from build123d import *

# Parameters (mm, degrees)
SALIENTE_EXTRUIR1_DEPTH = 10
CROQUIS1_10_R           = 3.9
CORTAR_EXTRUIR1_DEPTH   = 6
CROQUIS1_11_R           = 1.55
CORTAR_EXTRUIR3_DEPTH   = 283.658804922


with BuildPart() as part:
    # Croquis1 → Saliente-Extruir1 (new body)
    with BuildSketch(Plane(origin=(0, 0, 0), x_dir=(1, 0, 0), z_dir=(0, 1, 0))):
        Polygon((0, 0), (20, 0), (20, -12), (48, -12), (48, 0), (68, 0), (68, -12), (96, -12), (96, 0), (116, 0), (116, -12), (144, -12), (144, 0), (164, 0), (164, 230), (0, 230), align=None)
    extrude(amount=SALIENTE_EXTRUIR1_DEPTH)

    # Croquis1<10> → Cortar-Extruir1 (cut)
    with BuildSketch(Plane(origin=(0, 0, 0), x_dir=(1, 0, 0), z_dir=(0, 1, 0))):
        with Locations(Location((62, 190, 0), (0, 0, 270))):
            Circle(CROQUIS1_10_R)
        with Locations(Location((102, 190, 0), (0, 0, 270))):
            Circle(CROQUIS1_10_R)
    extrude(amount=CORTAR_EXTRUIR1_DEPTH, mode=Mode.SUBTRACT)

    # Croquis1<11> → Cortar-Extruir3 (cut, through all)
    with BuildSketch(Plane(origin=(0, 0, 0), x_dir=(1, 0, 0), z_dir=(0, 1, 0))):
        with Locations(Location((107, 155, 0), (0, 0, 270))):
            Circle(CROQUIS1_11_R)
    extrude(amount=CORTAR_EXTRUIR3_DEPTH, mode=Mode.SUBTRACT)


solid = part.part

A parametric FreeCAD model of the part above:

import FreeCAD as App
import Part
import Sketcher
from FreeCAD import Vector
Q = App.Units.Quantity


def add_polygon(sketch, points):
    """Adds a closed chain of lines whose ends are joined by coincident constraints."""
    first, n = sketch.GeometryCount, len(points)
    for a, b in zip(points, points[1:] + points[:1]):
        sketch.addGeometry(Part.LineSegment(App.Vector(*a, 0), App.Vector(*b, 0)), False)
    for i in range(n):
        sketch.addConstraint(Sketcher.Constraint("Coincident", first + i, 2, first + (i + 1) % n, 1))

doc = App.newDocument("Part")
body = doc.addObject("PartDesign::Body", "Body")

sketch1 = doc.addObject("Sketcher::SketchObject", "Sketch")
body.addObject(sketch1)
sketch1.AttachmentSupport = (doc.XZ_Plane, [""])
sketch1.MapMode = "FlatFace"
add_polygon(sketch1, [(0, 0), (20, 0), (20, 12), (48, 12), (48, 0), (68, 0), (68, 12), (96, 12), (96, 0), (116, 0), (116, 12), (144, 12), (144, 0), (164, 0), (164, -230), (0, -230)])
sketch1.addConstraint([
    Sketcher.Constraint("Horizontal", 0),
    Sketcher.Constraint("Vertical", 1),
    Sketcher.Constraint("Horizontal", 2),
    Sketcher.Constraint("Vertical", 3),
    Sketcher.Constraint("Horizontal", 4),
    Sketcher.Constraint("Vertical", 5),
    Sketcher.Constraint("Horizontal", 6),
    Sketcher.Constraint("Vertical", 7),
    Sketcher.Constraint("Horizontal", 8),
    Sketcher.Constraint("Vertical", 9),
    Sketcher.Constraint("Horizontal", 10),
    Sketcher.Constraint("Vertical", 11),
    Sketcher.Constraint("Horizontal", 12),
    Sketcher.Constraint("Vertical", 13),
    Sketcher.Constraint("Horizontal", 14),
    Sketcher.Constraint("Vertical", 15),
    Sketcher.Constraint("Coincident", 15, 2, -1, 1),
    Sketcher.Constraint("PointOnObject", 3, 2, -1),
    Sketcher.Constraint("PointOnObject", 7, 2, -1),
    Sketcher.Constraint("PointOnObject", 11, 2, -1),
    Sketcher.Constraint("Horizontal", 2, 2, 5, 2),
    Sketcher.Constraint("Horizontal", 6, 2, 9, 2),
    Sketcher.Constraint("Equal", 0, 4),
    Sketcher.Constraint("Equal", 2, 6),
    Sketcher.Constraint("Equal", 4, 8),
    Sketcher.Constraint("Equal", 6, 10),
    Sketcher.Constraint("Equal", 8, 12),
    Sketcher.Constraint("DistanceX", 0, 1, 0, 2, Q("20 mm")),
    Sketcher.Constraint("DistanceX", 2, 1, 2, 2, Q("28 mm")),
    Sketcher.Constraint("DistanceY", 1, 1, 1, 2, Q("12 mm")),
    Sketcher.Constraint("DistanceY", 13, 2, 13, 1, Q("230 mm")),
])
pad1 = doc.addObject("PartDesign::Pad", "Pad")
body.addObject(pad1)
pad1.Profile = sketch1
pad1.Length = 10
pad1.Reversed = True

sketch2 = doc.addObject("Sketcher::SketchObject", "Sketch001")
body.addObject(sketch2)
sketch2.AttachmentSupport = (doc.XZ_Plane, [""])
sketch2.MapMode = "FlatFace"
sketch2.addGeometry([
    Part.Circle(Vector(62, -190, 0), Vector(0, 0, 1), 3.9),
    Part.Circle(Vector(102, -190, 0), Vector(0, 0, 1), 3.9),
], False)
sketch2.addConstraint([
    Sketcher.Constraint("Equal", 0, 1),
    Sketcher.Constraint("Horizontal", 0, 3, 1, 3),
    Sketcher.Constraint("Diameter", 0, Q("7.8 mm")),
    Sketcher.Constraint("DistanceX", -1, 1, 0, 3, Q("62 mm")),
    Sketcher.Constraint("DistanceY", 0, 3, -1, 1, Q("190 mm")),
    Sketcher.Constraint("DistanceX", -1, 1, 1, 3, Q("102 mm")),
])
pocket1 = doc.addObject("PartDesign::Pocket", "Pocket")
body.addObject(pocket1)
pocket1.Profile = sketch2
pocket1.Length = 6

sketch3 = doc.addObject("Sketcher::SketchObject", "Sketch002")
body.addObject(sketch3)
sketch3.AttachmentSupport = (doc.XZ_Plane, [""])
sketch3.MapMode = "FlatFace"
sketch3.addGeometry(Part.Circle(Vector(107, -155, 0), Vector(0, 0, 1), 1.6), False)
sketch3.addConstraint([
    Sketcher.Constraint("Diameter", 0, Q("3.1 mm")),
    Sketcher.Constraint("DistanceX", -1, 1, 0, 3, Q("107 mm")),
    Sketcher.Constraint("DistanceY", 0, 3, -1, 1, Q("155 mm")),
])
pocket2 = doc.addObject("PartDesign::Pocket", "Pocket001")
body.addObject(pocket2)
pocket2.Profile = sketch3
pocket2.Type = "ThroughAll"

doc.recompute()
